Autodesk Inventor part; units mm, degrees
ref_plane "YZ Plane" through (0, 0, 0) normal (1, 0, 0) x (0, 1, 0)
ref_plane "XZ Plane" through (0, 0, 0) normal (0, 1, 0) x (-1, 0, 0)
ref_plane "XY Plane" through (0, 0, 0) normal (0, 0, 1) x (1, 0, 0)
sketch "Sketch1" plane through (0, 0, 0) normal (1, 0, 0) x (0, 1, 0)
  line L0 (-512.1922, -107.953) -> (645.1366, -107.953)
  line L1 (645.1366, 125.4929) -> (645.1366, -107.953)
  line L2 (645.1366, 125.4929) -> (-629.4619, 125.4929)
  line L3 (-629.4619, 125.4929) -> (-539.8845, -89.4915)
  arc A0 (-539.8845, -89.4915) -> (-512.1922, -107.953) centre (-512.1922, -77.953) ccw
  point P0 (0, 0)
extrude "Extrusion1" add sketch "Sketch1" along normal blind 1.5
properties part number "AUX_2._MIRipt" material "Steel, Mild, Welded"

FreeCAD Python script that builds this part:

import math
import FreeCAD as App
import Part
import Sketcher

V = App.Vector
Q = App.Units.Quantity

doc = App.newDocument("Part")
body = doc.addObject("PartDesign::Body", "Body")

# Sketch on YZ plane
sketch1 = doc.addObject("Sketcher::SketchObject", "Sketch")
body.addObject(sketch1)
sketch1.AttachmentSupport = (doc.YZ_Plane, [""])
sketch1.MapMode = "FlatFace"
sketch1.addGeometry([
    Part.ArcOfCircle(Part.Circle(V(-512.1922, -77.953, 0), V(0, 0, 1), 30.000008), math.radians(-157.380062), math.radians(-90)),  # 0
    Part.LineSegment(V(-512.1922, -107.953, 0), V(645.1366, -107.953, 0)),  # 1
    Part.LineSegment(V(645.1366, -107.953, 0), V(645.1366, 125.4929, 0)),  # 2
    Part.LineSegment(V(645.1366, 125.4929, 0), V(-629.4619, 125.4929, 0)),  # 3
    Part.LineSegment(V(-629.4619, 125.4929, 0), V(-539.8845, -89.4915, 0)),  # 4
], False)
sketch1.addConstraint([
    Sketcher.Constraint("Tangent", 0, 2, 1, 1),
    Sketcher.Constraint("Coincident", 1, 2, 2, 1),
    Sketcher.Constraint("Coincident", 2, 2, 3, 1),
    Sketcher.Constraint("Coincident", 3, 2, 4, 1),
    Sketcher.Constraint("Tangent", 4, 2, 0, 1),
    Sketcher.Constraint("Horizontal", 1),
    Sketcher.Constraint("Vertical", 2),
    Sketcher.Constraint("Horizontal", 3),
    Sketcher.Constraint("Radius", 0, 30.0),
    Sketcher.Constraint("Distance", 4, 232.9),
    Sketcher.Constraint("Angle", 4, Q("-67.38 deg")),
    Sketcher.Constraint("DistanceX", 1, 1, 1, 2, 1157.3288),
    Sketcher.Constraint("DistanceY", 0, 3, -1, 1, 77.953),
    Sketcher.Constraint("DistanceX", 3, 2, -1, 1, 629.462),
])
pad1 = doc.addObject("PartDesign::Pad", "Pad")
body.addObject(pad1)
pad1.Profile = sketch1
pad1.Length = 1.5

doc.recompute()
